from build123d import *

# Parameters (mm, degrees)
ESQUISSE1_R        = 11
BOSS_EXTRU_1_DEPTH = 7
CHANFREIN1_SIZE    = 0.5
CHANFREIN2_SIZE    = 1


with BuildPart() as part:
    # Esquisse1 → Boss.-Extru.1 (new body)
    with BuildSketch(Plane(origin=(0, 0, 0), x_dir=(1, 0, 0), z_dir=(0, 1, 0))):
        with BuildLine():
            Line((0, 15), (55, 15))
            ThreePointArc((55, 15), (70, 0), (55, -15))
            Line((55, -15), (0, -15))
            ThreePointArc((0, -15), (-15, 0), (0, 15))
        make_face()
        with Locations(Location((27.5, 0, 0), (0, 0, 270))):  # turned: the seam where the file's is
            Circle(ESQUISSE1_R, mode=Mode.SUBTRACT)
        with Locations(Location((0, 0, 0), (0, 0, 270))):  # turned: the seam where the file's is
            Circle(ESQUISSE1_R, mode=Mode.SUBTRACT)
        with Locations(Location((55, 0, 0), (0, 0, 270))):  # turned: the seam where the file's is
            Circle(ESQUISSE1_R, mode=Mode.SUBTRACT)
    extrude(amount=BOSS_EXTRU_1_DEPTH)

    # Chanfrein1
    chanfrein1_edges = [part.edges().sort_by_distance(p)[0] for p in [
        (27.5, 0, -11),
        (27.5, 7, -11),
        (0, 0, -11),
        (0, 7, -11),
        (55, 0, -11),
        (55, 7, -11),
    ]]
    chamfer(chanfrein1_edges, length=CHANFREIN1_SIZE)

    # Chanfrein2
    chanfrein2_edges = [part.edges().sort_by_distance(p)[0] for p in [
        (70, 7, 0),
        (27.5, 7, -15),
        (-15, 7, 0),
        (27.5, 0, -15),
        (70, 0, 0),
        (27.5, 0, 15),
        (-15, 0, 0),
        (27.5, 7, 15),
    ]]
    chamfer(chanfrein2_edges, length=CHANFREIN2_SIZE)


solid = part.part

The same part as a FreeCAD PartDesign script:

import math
import FreeCAD as App
import Part
import Sketcher
Q = App.Units.Quantity


def edges_at(feature, points):
    """Names of the edges that pass closest to the given points."""
    edges = feature.Shape.Edges
    near = lambda p: min(range(len(edges)), key=lambda i: edges[i].distToShape(Part.Vertex(*p))[0])
    return sorted({f"Edge{near(p) + 1}" for p in points})

doc = App.newDocument("Part")
params = doc.addObject("Spreadsheet::Sheet", "Params")
for row, (alias, value) in enumerate([
    ("sketch1_diameter", "22 mm"),
    ("sketch1_radius", "15 mm"),
    ("sketch1_width", "55 mm"),
    ("pad1_length", "7 mm"),
    ("chamfer_size", "0.5 mm"),
    ("chamfer2_size", "1 mm"),
], start=1):
    params.set(f"A{row}", alias)
    params.set(f"B{row}", "=" + value)
    params.setAlias(f"B{row}", alias)

body = doc.addObject("PartDesign::Body", "Body")

# Sketch on XZ plane
sketch1 = body.newObject("Sketcher::SketchObject", "Sketch")
sketch1.AttachmentSupport = (doc.getObject("XZ_Plane"), [""])
sketch1.MapMode = "FlatFace"
sketch1.addGeometry(Part.LineSegment(App.Vector(55, -15, 0), App.Vector(0, -15, 0)), False)
sketch1.addGeometry(Part.ArcOfCircle(Part.Circle(App.Vector(0, 0, 0), App.Vector(0, 0, 1), 15), math.radians(90), math.radians(270)), False)
sketch1.addGeometry(Part.LineSegment(App.Vector(0, 15, 0), App.Vector(55, 15, 0)), False)
sketch1.addGeometry(Part.ArcOfCircle(Part.Circle(App.Vector(55, 0, 0), App.Vector(0, 0, 1), 15), math.radians(-90), math.radians(90)), False)
sketch1.addGeometry(Part.Circle(App.Vector(55, 0, 0), App.Vector(0, 0, 1), 11), False)
sketch1.addGeometry(Part.Circle(App.Vector(27.5, 0, 0), App.Vector(0, 0, 1), 11), False)
sketch1.addGeometry(Part.Circle(App.Vector(0, 0, 0), App.Vector(0, 0, 1), 11), False)
sketch1.addConstraint(Sketcher.Constraint("Tangent", 0, 2, 1, 2))
sketch1.addConstraint(Sketcher.Constraint("Tangent", 1, 1, 2, 1))
sketch1.addConstraint(Sketcher.Constraint("Tangent", 2, 2, 3, 2))
sketch1.addConstraint(Sketcher.Constraint("Tangent", 3, 1, 0, 1))
sketch1.addConstraint(Sketcher.Constraint("Horizontal", 0))
sketch1.addConstraint(Sketcher.Constraint("Horizontal", 2))
sketch1.addConstraint(Sketcher.Constraint("Coincident", 1, 3, -1, 1))
sketch1.addConstraint(Sketcher.Constraint("Coincident", 6, 3, -1, 1))
sketch1.addConstraint(Sketcher.Constraint("Coincident", 4, 3, 3, 3))
sketch1.addConstraint(Sketcher.Constraint("Equal", 4, 5))
sketch1.addConstraint(Sketcher.Constraint("Equal", 5, 6))
sketch1.addConstraint(Sketcher.Constraint("PointOnObject", 5, 3, -1))
sketch1.addConstraint(Sketcher.Constraint("Diameter", 4, Q("22 mm")))
sketch1.addConstraint(Sketcher.Constraint("Radius", 1, Q("15 mm")))
sketch1.addConstraint(Sketcher.Constraint("DistanceX", 0, 2, 0, 1, Q("55 mm")))
sketch1.addConstraint(Sketcher.Constraint("DistanceX", -1, 1, 5, 3, Q("27.5 mm")))
sketch1.setExpression("Constraints[12]", "Params.sketch1_diameter")
sketch1.setExpression("Constraints[13]", "Params.sketch1_radius")
sketch1.setExpression("Constraints[14]", "Params.sketch1_width")
pad1 = body.newObject("PartDesign::Pad", "Pad")
pad1.Profile = sketch1
pad1.setExpression("Length", "Params.pad1_length")
pad1.Reversed = True
doc.recompute()

chamfer = body.newObject("PartDesign::Chamfer", "Chamfer")
chamfer.Base = (pad1, edges_at(pad1, [
    (27.5, 0, -11),
    (27.5, 7, -11),
    (0, 0, -11),
    (0, 7, -11),
    (55, 0, -11),
    (55, 7, -11),
]))
chamfer.setExpression("Size", "Params.chamfer_size")
doc.recompute()

chamfer2 = body.newObject("PartDesign::Chamfer", "Chamfer001")
chamfer2.Base = (chamfer, edges_at(chamfer, [
    (70, 7, 0),
    (27.5, 7, -15),
    (-15, 7, 0),
    (27.5, 0, -15),
    (70, 0, 0),
    (27.5, 0, 15),
    (-15, 0, 0),
    (27.5, 7, 15),
]))
chamfer2.setExpression("Size", "Params.chamfer2_size")

doc.recompute()
